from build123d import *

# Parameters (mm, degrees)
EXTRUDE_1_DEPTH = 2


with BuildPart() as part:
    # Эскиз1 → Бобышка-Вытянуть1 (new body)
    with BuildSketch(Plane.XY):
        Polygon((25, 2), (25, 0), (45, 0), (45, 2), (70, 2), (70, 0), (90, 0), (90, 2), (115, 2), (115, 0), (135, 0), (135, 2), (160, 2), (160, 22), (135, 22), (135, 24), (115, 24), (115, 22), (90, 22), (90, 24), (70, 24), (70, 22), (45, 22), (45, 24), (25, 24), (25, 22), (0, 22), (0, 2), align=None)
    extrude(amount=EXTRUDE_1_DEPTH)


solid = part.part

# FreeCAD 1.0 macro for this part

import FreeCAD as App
import Part
import Sketcher


def add_polygon(sketch, points):
    """Adds a closed chain of lines whose ends are joined by coincident constraints."""
    first, n = sketch.GeometryCount, len(points)
    for a, b in zip(points, points[1:] + points[:1]):
        sketch.addGeometry(Part.LineSegment(App.Vector(*a, 0), App.Vector(*b, 0)), False)
    for i in range(n):
        sketch.addConstraint(Sketcher.Constraint("Coincident", first + i, 2, first + (i + 1) % n, 1))

doc = App.newDocument("Part")
body = doc.addObject("PartDesign::Body", "Body")

# Sketch on XY plane
sketch1 = body.newObject("Sketcher::SketchObject", "Sketch")
sketch1.AttachmentSupport = (doc.getObject("XY_Plane"), [""])
sketch1.MapMode = "FlatFace"
add_polygon(sketch1, [(25, 2), (25, 0), (45, 0), (45, 2), (70, 2), (70, 0), (90, 0), (90, 2), (115, 2), (115, 0), (135, 0), (135, 2), (160, 2), (160, 22), (135, 22), (135, 24), (115, 24), (115, 22), (90, 22), (90, 24), (70, 24), (70, 22), (45, 22), (45, 24), (25, 24), (25, 22), (0, 22), (0, 2)])  # lines 0-27
sketch1.addConstraint(Sketcher.Constraint("Vertical", 0))
sketch1.addConstraint(Sketcher.Constraint("Horizontal", 1))
sketch1.addConstraint(Sketcher.Constraint("Vertical", 2))
sketch1.addConstraint(Sketcher.Constraint("Horizontal", 3))
sketch1.addConstraint(Sketcher.Constraint("Vertical", 4))
sketch1.addConstraint(Sketcher.Constraint("Horizontal", 5))
sketch1.addConstraint(Sketcher.Constraint("Vertical", 6))
sketch1.addConstraint(Sketcher.Constraint("Horizontal", 7))
sketch1.addConstraint(Sketcher.Constraint("Vertical", 8))
sketch1.addConstraint(Sketcher.Constraint("Horizontal", 9))
sketch1.addConstraint(Sketcher.Constraint("Vertical", 10))
sketch1.addConstraint(Sketcher.Constraint("Horizontal", 11))
sketch1.addConstraint(Sketcher.Constraint("Vertical", 12))
sketch1.addConstraint(Sketcher.Constraint("Horizontal", 13))
sketch1.addConstraint(Sketcher.Constraint("Vertical", 14))
sketch1.addConstraint(Sketcher.Constraint("Horizontal", 15))
sketch1.addConstraint(Sketcher.Constraint("Vertical", 16))
sketch1.addConstraint(Sketcher.Constraint("Horizontal", 17))
sketch1.addConstraint(Sketcher.Constraint("Vertical", 18))
sketch1.addConstraint(Sketcher.Constraint("Horizontal", 19))
sketch1.addConstraint(Sketcher.Constraint("Vertical", 20))
sketch1.addConstraint(Sketcher.Constraint("Horizontal", 21))
sketch1.addConstraint(Sketcher.Constraint("Vertical", 22))
sketch1.addConstraint(Sketcher.Constraint("Horizontal", 23))
sketch1.addConstraint(Sketcher.Constraint("Vertical", 24))
sketch1.addConstraint(Sketcher.Constraint("Horizontal", 25))
sketch1.addConstraint(Sketcher.Constraint("Vertical", 26))
sketch1.addConstraint(Sketcher.Constraint("Horizontal", 27))
sketch1.addConstraint(Sketcher.Constraint("PointOnObject", 0, 2, -1))
sketch1.addConstraint(Sketcher.Constraint("PointOnObject", 4, 2, -1))
sketch1.addConstraint(Sketcher.Constraint("PointOnObject", 8, 2, -1))
sketch1.addConstraint(Sketcher.Constraint("PointOnObject", 25, 2, -2))
sketch1.addConstraint(Sketcher.Constraint("Horizontal", 3, 2, 6, 2))
sketch1.addConstraint(Sketcher.Constraint("Horizontal", 7, 2, 10, 2))
sketch1.addConstraint(Sketcher.Constraint("Horizontal", 13, 2, 16, 2))
sketch1.addConstraint(Sketcher.Constraint("Horizontal", 15, 2, 18, 2))
sketch1.addConstraint(Sketcher.Constraint("Horizontal", 17, 2, 20, 2))
sketch1.addConstraint(Sketcher.Constraint("Horizontal", 19, 2, 22, 2))
sketch1.addConstraint(Sketcher.Constraint("Horizontal", 21, 2, 24, 2))
sketch1.addConstraint(Sketcher.Constraint("Horizontal", 11, 2, 26, 2))
sketch1.addConstraint(Sketcher.Constraint("Vertical", 10, 2, 13, 2))
sketch1.addConstraint(Sketcher.Constraint("Vertical", 8, 2, 15, 2))
sketch1.addConstraint(Sketcher.Constraint("Vertical", 6, 2, 17, 2))
sketch1.addConstraint(Sketcher.Constraint("Vertical", 4, 2, 19, 2))
sketch1.addConstraint(Sketcher.Constraint("Vertical", 2, 2, 21, 2))
sketch1.addConstraint(Sketcher.Constraint("Vertical", 0, 2, 23, 2))
sketch1.addConstraint(Sketcher.Constraint("Equal", 1, 5))
sketch1.addConstraint(Sketcher.Constraint("Equal", 3, 7))
sketch1.addConstraint(Sketcher.Constraint("Equal", 5, 9))
sketch1.addConstraint(Sketcher.Constraint("Equal", 7, 11))
sketch1.addConstraint(Sketcher.Constraint("Equal", 21, 25))
sketch1.addConstraint(Sketcher.Constraint("Equal", 23, 12))
sketch1.addConstraint(Sketcher.Constraint("Equal", 10, 14))
sketch1.addConstraint(Sketcher.Constraint("DistanceX", 1, 1, 1, 2, 20.0))
sketch1.addConstraint(Sketcher.Constraint("DistanceX", 3, 1, 3, 2, 25.0))
sketch1.addConstraint(Sketcher.Constraint("DistanceY", 0, 2, 0, 1, 2.0))
pad1 = body.newObject("PartDesign::Pad", "Pad")
pad1.Profile = sketch1
pad1.Length = 2

doc.recompute()
